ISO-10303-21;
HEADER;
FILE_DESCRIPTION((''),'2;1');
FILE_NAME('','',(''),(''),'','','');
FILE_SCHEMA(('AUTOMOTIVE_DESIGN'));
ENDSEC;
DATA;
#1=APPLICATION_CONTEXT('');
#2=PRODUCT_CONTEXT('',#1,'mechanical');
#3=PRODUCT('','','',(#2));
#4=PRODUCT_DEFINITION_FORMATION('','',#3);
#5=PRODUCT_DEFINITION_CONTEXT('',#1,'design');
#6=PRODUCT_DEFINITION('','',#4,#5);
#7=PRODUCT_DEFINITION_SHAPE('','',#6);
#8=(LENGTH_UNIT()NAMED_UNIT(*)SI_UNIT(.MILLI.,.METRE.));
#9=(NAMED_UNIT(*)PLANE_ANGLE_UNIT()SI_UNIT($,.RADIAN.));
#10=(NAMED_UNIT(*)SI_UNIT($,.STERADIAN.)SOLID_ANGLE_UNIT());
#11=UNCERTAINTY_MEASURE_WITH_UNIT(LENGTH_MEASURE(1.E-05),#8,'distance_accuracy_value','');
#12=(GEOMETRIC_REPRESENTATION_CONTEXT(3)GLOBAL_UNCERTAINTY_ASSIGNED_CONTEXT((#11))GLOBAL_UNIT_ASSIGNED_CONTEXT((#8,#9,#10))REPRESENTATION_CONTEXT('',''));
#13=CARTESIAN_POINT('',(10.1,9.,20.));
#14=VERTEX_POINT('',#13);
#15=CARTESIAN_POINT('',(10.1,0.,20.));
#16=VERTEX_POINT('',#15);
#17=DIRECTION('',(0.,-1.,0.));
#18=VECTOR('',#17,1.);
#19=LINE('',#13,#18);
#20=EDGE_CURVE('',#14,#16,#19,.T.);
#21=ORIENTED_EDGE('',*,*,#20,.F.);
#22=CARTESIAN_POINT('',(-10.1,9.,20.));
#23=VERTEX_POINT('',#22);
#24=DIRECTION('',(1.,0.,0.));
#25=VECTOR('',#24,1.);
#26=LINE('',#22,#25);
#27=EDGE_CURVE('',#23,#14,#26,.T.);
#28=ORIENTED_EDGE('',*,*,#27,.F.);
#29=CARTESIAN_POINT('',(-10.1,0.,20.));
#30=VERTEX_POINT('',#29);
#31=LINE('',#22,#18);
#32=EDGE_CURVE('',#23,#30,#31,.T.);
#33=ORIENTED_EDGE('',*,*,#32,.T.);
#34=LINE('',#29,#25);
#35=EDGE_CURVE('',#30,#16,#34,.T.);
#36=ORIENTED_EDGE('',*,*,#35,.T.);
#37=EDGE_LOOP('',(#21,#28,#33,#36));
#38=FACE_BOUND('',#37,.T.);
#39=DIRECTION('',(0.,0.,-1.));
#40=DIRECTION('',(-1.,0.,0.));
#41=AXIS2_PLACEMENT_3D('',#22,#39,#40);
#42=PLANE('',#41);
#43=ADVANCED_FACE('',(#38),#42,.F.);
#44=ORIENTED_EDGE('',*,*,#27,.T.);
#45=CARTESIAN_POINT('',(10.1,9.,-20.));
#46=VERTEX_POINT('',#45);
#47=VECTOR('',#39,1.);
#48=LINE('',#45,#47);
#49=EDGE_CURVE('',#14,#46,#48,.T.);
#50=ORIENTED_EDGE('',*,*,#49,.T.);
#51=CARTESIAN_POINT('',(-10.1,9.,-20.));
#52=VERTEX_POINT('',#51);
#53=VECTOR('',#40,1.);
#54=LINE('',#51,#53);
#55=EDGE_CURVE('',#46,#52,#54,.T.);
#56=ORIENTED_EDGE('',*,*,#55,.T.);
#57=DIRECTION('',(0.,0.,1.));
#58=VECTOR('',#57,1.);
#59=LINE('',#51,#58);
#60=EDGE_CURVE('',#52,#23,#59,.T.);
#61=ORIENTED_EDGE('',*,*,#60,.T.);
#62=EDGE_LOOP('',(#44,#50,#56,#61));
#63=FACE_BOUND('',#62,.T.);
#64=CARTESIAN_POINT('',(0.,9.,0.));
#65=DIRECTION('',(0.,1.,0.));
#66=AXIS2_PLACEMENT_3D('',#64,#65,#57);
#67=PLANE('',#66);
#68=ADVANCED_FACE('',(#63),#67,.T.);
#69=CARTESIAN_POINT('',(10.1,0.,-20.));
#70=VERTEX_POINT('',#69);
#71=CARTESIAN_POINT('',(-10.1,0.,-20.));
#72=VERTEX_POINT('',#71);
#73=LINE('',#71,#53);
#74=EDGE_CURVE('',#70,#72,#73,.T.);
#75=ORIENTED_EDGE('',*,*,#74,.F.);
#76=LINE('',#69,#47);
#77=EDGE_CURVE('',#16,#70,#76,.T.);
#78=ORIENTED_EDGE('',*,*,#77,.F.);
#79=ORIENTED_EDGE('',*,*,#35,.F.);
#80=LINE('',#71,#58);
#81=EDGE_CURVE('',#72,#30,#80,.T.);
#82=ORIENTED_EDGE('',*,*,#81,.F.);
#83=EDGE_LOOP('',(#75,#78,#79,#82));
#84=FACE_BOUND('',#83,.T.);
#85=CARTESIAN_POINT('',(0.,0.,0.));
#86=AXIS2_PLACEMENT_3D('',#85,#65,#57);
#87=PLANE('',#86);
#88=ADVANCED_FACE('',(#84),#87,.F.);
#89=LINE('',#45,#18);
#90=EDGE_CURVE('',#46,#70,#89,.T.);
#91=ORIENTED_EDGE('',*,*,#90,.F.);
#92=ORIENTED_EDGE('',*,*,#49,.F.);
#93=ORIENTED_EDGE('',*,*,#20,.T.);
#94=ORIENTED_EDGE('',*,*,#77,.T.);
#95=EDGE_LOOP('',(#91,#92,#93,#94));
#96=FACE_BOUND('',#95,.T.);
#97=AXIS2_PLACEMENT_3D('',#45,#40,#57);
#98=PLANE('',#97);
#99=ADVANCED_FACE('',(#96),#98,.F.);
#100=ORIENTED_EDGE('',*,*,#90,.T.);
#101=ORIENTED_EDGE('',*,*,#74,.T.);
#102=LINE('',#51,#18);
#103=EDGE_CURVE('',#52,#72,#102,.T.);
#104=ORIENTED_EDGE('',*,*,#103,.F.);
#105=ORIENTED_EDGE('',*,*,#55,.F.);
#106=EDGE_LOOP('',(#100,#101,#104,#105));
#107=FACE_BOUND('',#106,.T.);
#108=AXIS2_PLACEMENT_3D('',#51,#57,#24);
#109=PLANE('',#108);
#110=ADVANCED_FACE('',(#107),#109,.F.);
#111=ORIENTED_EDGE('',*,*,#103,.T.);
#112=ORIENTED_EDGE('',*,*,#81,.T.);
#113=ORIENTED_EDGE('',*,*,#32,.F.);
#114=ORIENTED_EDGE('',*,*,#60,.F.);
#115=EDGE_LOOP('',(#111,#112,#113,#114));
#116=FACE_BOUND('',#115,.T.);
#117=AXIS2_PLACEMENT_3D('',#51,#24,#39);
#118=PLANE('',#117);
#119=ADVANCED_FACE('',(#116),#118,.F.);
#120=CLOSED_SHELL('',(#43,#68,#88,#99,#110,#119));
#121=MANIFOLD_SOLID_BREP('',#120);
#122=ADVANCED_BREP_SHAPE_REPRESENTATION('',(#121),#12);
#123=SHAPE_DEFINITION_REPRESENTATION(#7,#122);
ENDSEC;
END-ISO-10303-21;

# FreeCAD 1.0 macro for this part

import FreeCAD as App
import Part
import Sketcher
Q = App.Units.Quantity

doc = App.newDocument("Part")
body = doc.addObject("PartDesign::Body", "Body")

# Sketch on XZ plane
sketch1 = doc.addObject("Sketcher::SketchObject", "Sketch")
body.addObject(sketch1)
sketch1.AttachmentSupport = (doc.XZ_Plane, [""])
sketch1.MapMode = "FlatFace"
sketch1.addGeometry([
    Part.LineSegment(App.Vector(-10.1, -20, 0), App.Vector(-10.1, 20, 0)),
    Part.LineSegment(App.Vector(-10.1, 20, 0), App.Vector(10.1, 20, 0)),
    Part.LineSegment(App.Vector(10.1, 20, 0), App.Vector(10.1, -20, 0)),
    Part.LineSegment(App.Vector(10.1, -20, 0), App.Vector(-10.1, -20, 0)),
], False)
sketch1.addConstraint([
    Sketcher.Constraint("Coincident", 0, 2, 1, 1),
    Sketcher.Constraint("Coincident", 1, 2, 2, 1),
    Sketcher.Constraint("Coincident", 2, 2, 3, 1),
    Sketcher.Constraint("Coincident", 3, 2, 0, 1),
    Sketcher.Constraint("Vertical", 0),
    Sketcher.Constraint("Horizontal", 1),
    Sketcher.Constraint("Vertical", 2),
    Sketcher.Constraint("Horizontal", 3),
    Sketcher.Constraint("Symmetric", 0, 2, 2, 2, -1, 1),
    Sketcher.Constraint("DistanceY", 0, 1, 0, 2, Q("40 mm")),
    Sketcher.Constraint("DistanceX", 1, 1, 1, 2, Q("20.2 mm")),
])
pad1 = doc.addObject("PartDesign::Pad", "Pad")
body.addObject(pad1)
pad1.Profile = sketch1
pad1.Length = 9
pad1.Reversed = True

doc.recompute()
